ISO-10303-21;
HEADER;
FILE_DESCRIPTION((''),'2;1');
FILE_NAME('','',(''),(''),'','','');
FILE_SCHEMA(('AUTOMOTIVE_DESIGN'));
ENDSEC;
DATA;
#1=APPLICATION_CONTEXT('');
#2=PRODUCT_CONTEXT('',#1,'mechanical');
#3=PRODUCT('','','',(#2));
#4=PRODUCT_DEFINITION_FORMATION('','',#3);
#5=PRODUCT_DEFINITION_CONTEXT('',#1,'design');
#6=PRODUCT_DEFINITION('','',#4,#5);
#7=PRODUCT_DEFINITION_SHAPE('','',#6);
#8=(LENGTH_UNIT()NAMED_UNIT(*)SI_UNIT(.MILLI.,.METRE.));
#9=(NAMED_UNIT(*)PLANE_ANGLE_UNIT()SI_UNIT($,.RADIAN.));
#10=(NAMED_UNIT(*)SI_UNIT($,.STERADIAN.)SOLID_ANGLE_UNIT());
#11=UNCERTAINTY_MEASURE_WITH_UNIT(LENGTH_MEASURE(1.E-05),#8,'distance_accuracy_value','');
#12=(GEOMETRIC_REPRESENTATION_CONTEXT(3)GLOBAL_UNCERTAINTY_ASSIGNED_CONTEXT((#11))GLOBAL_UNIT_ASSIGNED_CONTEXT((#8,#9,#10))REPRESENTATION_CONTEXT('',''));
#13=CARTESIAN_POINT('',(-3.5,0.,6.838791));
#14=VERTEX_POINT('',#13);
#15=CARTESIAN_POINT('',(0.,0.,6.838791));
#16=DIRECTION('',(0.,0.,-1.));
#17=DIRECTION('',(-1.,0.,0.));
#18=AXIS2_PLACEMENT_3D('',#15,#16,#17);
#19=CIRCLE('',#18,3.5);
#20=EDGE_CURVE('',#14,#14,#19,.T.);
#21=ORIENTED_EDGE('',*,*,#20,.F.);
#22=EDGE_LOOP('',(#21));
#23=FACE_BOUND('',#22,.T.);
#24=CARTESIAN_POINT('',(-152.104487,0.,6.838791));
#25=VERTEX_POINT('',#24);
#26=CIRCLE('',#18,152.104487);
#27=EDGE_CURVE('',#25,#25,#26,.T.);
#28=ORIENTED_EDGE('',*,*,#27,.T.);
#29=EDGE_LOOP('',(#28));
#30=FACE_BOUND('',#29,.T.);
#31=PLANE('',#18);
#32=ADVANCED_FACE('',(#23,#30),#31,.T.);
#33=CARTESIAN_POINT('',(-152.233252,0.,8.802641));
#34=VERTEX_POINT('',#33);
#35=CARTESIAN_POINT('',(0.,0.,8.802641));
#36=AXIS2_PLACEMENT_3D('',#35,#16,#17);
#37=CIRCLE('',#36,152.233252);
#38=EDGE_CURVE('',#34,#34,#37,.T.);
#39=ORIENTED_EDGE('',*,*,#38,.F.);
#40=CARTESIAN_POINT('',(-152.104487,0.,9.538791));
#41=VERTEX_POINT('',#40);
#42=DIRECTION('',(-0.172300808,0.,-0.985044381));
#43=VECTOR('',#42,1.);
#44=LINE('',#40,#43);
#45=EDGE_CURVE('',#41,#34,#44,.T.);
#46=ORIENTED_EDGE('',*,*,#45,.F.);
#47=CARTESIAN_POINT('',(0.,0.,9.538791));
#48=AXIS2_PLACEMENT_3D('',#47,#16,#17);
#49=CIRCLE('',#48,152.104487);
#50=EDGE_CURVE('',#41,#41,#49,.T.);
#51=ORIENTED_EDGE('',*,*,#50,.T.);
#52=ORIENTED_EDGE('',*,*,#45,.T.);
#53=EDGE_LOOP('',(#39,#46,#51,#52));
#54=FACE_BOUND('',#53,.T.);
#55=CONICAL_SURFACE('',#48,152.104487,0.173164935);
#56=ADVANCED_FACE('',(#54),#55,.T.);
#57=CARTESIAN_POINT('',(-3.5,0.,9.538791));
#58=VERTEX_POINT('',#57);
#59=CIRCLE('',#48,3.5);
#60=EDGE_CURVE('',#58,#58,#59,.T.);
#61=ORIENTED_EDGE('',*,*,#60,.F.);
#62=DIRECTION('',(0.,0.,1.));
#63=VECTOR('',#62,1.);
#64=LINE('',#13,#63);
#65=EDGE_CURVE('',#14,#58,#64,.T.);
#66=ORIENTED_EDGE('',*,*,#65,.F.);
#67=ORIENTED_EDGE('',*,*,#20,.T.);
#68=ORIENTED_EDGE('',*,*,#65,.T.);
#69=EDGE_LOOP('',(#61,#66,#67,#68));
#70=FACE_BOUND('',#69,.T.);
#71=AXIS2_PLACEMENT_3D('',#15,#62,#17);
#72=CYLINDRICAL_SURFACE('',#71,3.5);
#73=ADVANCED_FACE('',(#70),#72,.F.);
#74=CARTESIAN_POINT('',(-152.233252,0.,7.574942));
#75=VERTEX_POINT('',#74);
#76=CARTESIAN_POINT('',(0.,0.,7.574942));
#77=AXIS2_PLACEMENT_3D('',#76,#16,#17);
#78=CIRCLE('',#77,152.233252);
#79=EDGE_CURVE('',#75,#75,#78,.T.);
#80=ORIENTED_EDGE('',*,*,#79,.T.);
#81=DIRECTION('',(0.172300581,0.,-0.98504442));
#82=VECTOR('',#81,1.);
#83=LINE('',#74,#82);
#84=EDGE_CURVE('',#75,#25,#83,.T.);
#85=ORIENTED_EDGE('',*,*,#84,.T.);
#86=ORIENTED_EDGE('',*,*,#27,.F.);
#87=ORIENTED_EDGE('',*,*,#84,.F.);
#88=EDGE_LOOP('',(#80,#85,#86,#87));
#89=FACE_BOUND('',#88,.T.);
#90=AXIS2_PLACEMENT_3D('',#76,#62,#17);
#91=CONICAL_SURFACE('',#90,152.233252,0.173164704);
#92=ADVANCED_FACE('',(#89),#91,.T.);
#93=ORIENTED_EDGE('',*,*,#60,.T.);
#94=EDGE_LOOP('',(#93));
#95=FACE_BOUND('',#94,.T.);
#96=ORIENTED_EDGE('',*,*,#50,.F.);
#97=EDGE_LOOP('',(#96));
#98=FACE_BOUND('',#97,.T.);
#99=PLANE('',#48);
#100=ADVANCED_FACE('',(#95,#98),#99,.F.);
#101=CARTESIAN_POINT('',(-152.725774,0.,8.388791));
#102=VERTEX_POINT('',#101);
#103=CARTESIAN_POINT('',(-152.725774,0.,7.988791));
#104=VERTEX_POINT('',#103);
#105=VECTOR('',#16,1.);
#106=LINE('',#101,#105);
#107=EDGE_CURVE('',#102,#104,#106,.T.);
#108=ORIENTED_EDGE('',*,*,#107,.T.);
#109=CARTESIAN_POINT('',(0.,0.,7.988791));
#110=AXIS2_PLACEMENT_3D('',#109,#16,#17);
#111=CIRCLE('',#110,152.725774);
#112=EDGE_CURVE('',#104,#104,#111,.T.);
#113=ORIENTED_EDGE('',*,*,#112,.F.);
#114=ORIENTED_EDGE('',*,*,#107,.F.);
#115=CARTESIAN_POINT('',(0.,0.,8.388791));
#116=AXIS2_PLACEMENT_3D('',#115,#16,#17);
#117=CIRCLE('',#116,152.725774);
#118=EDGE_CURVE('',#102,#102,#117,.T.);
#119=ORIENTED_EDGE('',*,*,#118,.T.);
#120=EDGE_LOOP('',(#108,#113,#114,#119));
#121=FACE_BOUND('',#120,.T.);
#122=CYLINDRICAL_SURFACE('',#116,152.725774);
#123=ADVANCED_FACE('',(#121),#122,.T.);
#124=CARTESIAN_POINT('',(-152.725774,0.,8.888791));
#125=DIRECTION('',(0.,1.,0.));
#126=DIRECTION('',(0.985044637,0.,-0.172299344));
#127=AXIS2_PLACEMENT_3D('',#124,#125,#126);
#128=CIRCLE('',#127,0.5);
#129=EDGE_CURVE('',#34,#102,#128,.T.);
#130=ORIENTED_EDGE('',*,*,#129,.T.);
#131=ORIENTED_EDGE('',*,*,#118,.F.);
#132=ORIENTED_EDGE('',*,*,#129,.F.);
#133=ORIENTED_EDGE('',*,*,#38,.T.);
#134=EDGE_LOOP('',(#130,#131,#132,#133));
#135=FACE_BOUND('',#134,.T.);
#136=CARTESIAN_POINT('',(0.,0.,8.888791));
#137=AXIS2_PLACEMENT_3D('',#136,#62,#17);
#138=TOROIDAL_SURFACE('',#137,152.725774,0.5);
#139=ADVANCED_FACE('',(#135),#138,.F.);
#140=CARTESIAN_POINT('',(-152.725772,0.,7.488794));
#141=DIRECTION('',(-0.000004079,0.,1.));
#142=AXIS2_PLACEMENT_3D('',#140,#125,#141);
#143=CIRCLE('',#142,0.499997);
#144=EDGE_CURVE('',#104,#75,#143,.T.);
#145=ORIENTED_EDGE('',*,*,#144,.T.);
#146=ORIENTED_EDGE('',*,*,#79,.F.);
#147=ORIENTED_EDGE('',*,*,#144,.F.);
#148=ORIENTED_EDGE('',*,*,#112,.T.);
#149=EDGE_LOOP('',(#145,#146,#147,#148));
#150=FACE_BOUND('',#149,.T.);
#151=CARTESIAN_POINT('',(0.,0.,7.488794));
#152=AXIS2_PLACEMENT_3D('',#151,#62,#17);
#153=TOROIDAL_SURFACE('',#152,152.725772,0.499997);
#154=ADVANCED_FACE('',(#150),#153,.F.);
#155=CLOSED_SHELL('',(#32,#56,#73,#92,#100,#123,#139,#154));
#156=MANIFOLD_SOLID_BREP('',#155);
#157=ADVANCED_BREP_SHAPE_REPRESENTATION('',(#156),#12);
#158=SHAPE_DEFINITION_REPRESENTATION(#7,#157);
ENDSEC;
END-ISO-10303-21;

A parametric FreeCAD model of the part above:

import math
import FreeCAD as App
import Part
import Sketcher

V = App.Vector

doc = App.newDocument("Part")
params = doc.addObject("Spreadsheet::Sheet", "Params")
for row, (alias, value) in enumerate([
    ("sketch1_radius", "0.5 mm"),
    ("sketch1_height", "2.7 mm"),
    ("sketch1_height2", "0.4 mm"),
    ("revolution_angle", "360 deg"),
], start=1):
    params.set(f"A{row}", alias)
    params.set(f"B{row}", "=" + value)
    params.setAlias(f"B{row}", alias)

body = doc.addObject("PartDesign::Body", "Body")

# Sketch on XZ plane
sketch1 = body.newObject("Sketcher::SketchObject", "Sketch")
sketch1.AttachmentSupport = (doc.getObject("XZ_Plane"), [""])
sketch1.MapMode = "FlatFace"
sketch1.addGeometry(Part.LineSegment(V(-3.5, 6.838791, 0), V(-3.5, 9.538791, 0)), False)
sketch1.addGeometry(Part.LineSegment(V(-3.5, 9.538791, 0), V(-152.104487, 9.538791, 0)), False)
sketch1.addGeometry(Part.LineSegment(V(-152.104487, 9.538791, 0), V(-152.233252, 8.802641, 0)), False)
sketch1.addGeometry(Part.ArcOfCircle(Part.Circle(V(-152.725774, 8.888791, 0), V(0, 0, 1), 0.5), math.radians(-90.000008), math.radians(-9.921535)), False)
sketch1.addGeometry(Part.LineSegment(V(-152.725774, 8.388791, 0), V(-152.725774, 7.988791, 0)), False)
sketch1.addGeometry(Part.ArcOfCircle(Part.Circle(V(-152.725772, 7.488794, 0), V(0, 0, 1), 0.499997), math.radians(9.921446), math.radians(90.000234)), False)
sketch1.addGeometry(Part.LineSegment(V(-152.233252, 7.574942, 0), V(-152.104487, 6.838791, 0)), False)
sketch1.addGeometry(Part.LineSegment(V(-152.104487, 6.838791, 0), V(-3.5, 6.838791, 0)), False)
sketch1.addConstraint(Sketcher.Constraint("Coincident", 0, 2, 1, 1))
sketch1.addConstraint(Sketcher.Constraint("Coincident", 1, 2, 2, 1))
sketch1.addConstraint(Sketcher.Constraint("Tangent", 2, 2, 3, 2))
sketch1.addConstraint(Sketcher.Constraint("Coincident", 3, 1, 4, 1))
sketch1.addConstraint(Sketcher.Constraint("Coincident", 4, 2, 5, 2))
sketch1.addConstraint(Sketcher.Constraint("Coincident", 5, 1, 6, 1))
sketch1.addConstraint(Sketcher.Constraint("Coincident", 6, 2, 7, 1))
sketch1.addConstraint(Sketcher.Constraint("Coincident", 7, 2, 0, 1))
sketch1.addConstraint(Sketcher.Constraint("Vertical", 0))
sketch1.addConstraint(Sketcher.Constraint("Horizontal", 1))
sketch1.addConstraint(Sketcher.Constraint("Vertical", 4))
sketch1.addConstraint(Sketcher.Constraint("Horizontal", 7))
sketch1.addConstraint(Sketcher.Constraint("Vertical", 3, 3, 5, 3))
sketch1.addConstraint(Sketcher.Constraint("Vertical", 2, 2, 5, 1))
sketch1.addConstraint(Sketcher.Constraint("Vertical", 1, 2, 6, 2))
sketch1.addConstraint(Sketcher.Constraint("Equal", 2, 6))
sketch1.addConstraint(Sketcher.Constraint("Radius", 3, 0.5))
sketch1.addConstraint(Sketcher.Constraint("DistanceY", 0, 1, 0, 2, 2.7))
sketch1.addConstraint(Sketcher.Constraint("DistanceY", 4, 2, 4, 1, 0.4))
sketch1.addConstraint(Sketcher.Constraint("DistanceX", 0, 2, -1, 1, 3.5))
sketch1.addConstraint(Sketcher.Constraint("DistanceY", 3, 3, 0, 2, 0.65))
sketch1.addConstraint(Sketcher.Constraint("DistanceY", 5, 1, 2, 2, 1.227699))
sketch1.addConstraint(Sketcher.Constraint("DistanceX", 1, 2, 1, 1, 148.604487))
sketch1.addConstraint(Sketcher.Constraint("DistanceY", -1, 1, 3, 3, 8.888791))
sketch1.addConstraint(Sketcher.Constraint("DistanceX", 3, 1, -1, 1, 152.725774))
sketch1.setExpression("Constraints[16]", "Params.sketch1_radius")
sketch1.setExpression("Constraints[17]", "Params.sketch1_height")
sketch1.setExpression("Constraints[18]", "Params.sketch1_height2")
revolution = body.newObject("PartDesign::Revolution", "Revolution")
revolution.Profile = sketch1
revolution.ReferenceAxis = (sketch1, ["V_Axis"])
revolution.setExpression("Angle", "Params.revolution_angle")

doc.recompute()
